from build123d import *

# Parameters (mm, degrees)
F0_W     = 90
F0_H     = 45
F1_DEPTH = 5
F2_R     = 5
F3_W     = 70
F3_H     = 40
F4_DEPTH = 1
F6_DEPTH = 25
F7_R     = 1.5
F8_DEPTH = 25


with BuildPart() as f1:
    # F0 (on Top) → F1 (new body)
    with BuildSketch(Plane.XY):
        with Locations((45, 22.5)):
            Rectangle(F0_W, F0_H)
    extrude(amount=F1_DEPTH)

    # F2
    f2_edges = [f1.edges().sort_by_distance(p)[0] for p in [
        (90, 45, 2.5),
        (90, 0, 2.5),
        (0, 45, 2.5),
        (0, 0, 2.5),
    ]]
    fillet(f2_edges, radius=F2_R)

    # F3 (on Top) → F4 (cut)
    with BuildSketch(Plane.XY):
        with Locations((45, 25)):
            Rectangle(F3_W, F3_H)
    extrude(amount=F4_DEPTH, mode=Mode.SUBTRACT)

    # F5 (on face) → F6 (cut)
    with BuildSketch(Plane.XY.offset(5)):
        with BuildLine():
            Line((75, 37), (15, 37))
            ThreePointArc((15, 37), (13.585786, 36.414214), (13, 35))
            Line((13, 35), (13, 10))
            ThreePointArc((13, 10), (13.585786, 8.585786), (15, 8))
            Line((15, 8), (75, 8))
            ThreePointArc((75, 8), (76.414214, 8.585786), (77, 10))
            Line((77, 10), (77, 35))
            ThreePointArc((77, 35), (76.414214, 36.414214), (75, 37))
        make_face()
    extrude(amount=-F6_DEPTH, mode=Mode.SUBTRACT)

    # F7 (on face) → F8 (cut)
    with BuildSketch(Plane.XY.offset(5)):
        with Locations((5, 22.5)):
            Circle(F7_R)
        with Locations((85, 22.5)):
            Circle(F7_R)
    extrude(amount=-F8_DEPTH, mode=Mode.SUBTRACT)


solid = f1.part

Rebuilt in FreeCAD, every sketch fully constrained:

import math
import FreeCAD as App
import Part
import Sketcher
from FreeCAD import Vector
Q = App.Units.Quantity


def edges_at(feature, points):
    """Names of the edges that pass closest to the given points."""
    edges = feature.Shape.Edges
    near = lambda p: min(range(len(edges)), key=lambda i: edges[i].distToShape(Part.Vertex(*p))[0])
    return sorted({f"Edge{near(p) + 1}" for p in points})


def add_polygon(sketch, points):
    """Adds a closed chain of lines whose ends are joined by coincident constraints."""
    first, n = sketch.GeometryCount, len(points)
    for a, b in zip(points, points[1:] + points[:1]):
        sketch.addGeometry(Part.LineSegment(App.Vector(*a, 0), App.Vector(*b, 0)), False)
    for i in range(n):
        sketch.addConstraint(Sketcher.Constraint("Coincident", first + i, 2, first + (i + 1) % n, 1))

doc = App.newDocument("Part")
body = doc.addObject("PartDesign::Body", "Body")

sketch1 = body.newObject("Sketcher::SketchObject", "Sketch")
sketch1.AttachmentSupport = (doc.getObject("XY_Plane"), [""])
sketch1.MapMode = "FlatFace"
add_polygon(sketch1, [(0, 45), (0, 0), (90, 0), (90, 45)])
sketch1.addConstraint([
    Sketcher.Constraint("Vertical", 0),
    Sketcher.Constraint("Horizontal", 1),
    Sketcher.Constraint("Vertical", 2),
    Sketcher.Constraint("Horizontal", 3),
    Sketcher.Constraint("Coincident", 0, 2, -1, 1),
    Sketcher.Constraint("DistanceX", 1, 1, 1, 2, Q("90 mm")),
    Sketcher.Constraint("DistanceY", 0, 2, 0, 1, Q("45 mm")),
])
pad1 = body.newObject("PartDesign::Pad", "Pad")
pad1.Profile = sketch1
pad1.Length = 5
doc.recompute()

fillet = body.newObject("PartDesign::Fillet", "Fillet")
fillet.Base = (pad1, edges_at(pad1, [
    (90, 45, 2.5),
    (90, 0, 2.5),
    (0, 45, 2.5),
    (0, 0, 2.5),
]))
fillet.Radius = 5

sketch2 = body.newObject("Sketcher::SketchObject", "Sketch001")
sketch2.AttachmentSupport = (doc.getObject("XY_Plane"), [""])
sketch2.MapMode = "FlatFace"
add_polygon(sketch2, [(10, 45), (10, 5), (80, 5), (80, 45)])
sketch2.addConstraint([
    Sketcher.Constraint("Vertical", 0),
    Sketcher.Constraint("Horizontal", 1),
    Sketcher.Constraint("Vertical", 2),
    Sketcher.Constraint("Horizontal", 3),
    Sketcher.Constraint("DistanceX", 1, 1, 1, 2, Q("70 mm")),
    Sketcher.Constraint("DistanceY", 0, 2, 0, 1, Q("40 mm")),
    Sketcher.Constraint("DistanceX", -1, 1, 0, 2, Q("10 mm")),
    Sketcher.Constraint("DistanceY", -1, 1, 0, 2, Q("5 mm")),
])
pocket1 = body.newObject("PartDesign::Pocket", "Pocket")
pocket1.Profile = sketch2
pocket1.Length = 1
pocket1.Reversed = True

sketch3 = body.newObject("Sketcher::SketchObject", "Sketch002")
sketch3.AttachmentSupport = (doc.getObject("XY_Plane"), [""])
sketch3.MapMode = "FlatFace"
sketch3.AttachmentOffset = App.Placement(Vector(0, 0, 5), App.Rotation())
sketch3.addGeometry([
    Part.LineSegment(Vector(75, 37, 0), Vector(15, 37, 0)),
    Part.ArcOfCircle(Part.Circle(Vector(14.999999, 35.000001, 0), Vector(0, 0, 1), 1.999999), math.radians(89.999957), math.radians(180.000043)),
    Part.LineSegment(Vector(13, 35, 0), Vector(13, 10, 0)),
    Part.ArcOfCircle(Part.Circle(Vector(14.999999, 9.999999, 0), Vector(0, 0, 1), 1.999999), math.radians(179.999957), math.radians(270.000043)),
    Part.LineSegment(Vector(15, 8, 0), Vector(75, 8, 0)),
    Part.ArcOfCircle(Part.Circle(Vector(75.000001, 9.999999, 0), Vector(0, 0, 1), 1.999999), math.radians(-90.000043), math.radians(0.000043)),
    Part.LineSegment(Vector(77, 10, 0), Vector(77, 35, 0)),
    Part.ArcOfCircle(Part.Circle(Vector(75.000001, 35.000001, 0), Vector(0, 0, 1), 1.999999), math.radians(-0.000043), math.radians(90.000043)),
], False)
sketch3.addConstraint([
    Sketcher.Constraint("Tangent", 0, 2, 1, 1),
    Sketcher.Constraint("Tangent", 1, 2, 2, 1),
    Sketcher.Constraint("Tangent", 2, 2, 3, 1),
    Sketcher.Constraint("Tangent", 3, 2, 4, 1),
    Sketcher.Constraint("Tangent", 4, 2, 5, 1),
    Sketcher.Constraint("Tangent", 5, 2, 6, 1),
    Sketcher.Constraint("Tangent", 6, 2, 7, 1),
    Sketcher.Constraint("Tangent", 7, 2, 0, 1),
    Sketcher.Constraint("Horizontal", 0),
    Sketcher.Constraint("Vertical", 2),
    Sketcher.Constraint("Horizontal", 4),
    Sketcher.Constraint("Vertical", 6),
    Sketcher.Constraint("Equal", 1, 3),
    Sketcher.Constraint("Equal", 3, 5),
    Sketcher.Constraint("Equal", 5, 7),
    Sketcher.Constraint("Radius", 1, Q("1.999999 mm")),
    Sketcher.Constraint("DistanceX", 0, 2, 0, 1, Q("60 mm")),
    Sketcher.Constraint("DistanceY", 2, 2, 2, 1, Q("25 mm")),
    Sketcher.Constraint("DistanceX", -1, 1, 1, 3, Q("14.999999 mm")),
    Sketcher.Constraint("DistanceY", -1, 1, 1, 3, Q("35.000001 mm")),
])
pocket2 = body.newObject("PartDesign::Pocket", "Pocket001")
pocket2.Profile = sketch3
pocket2.Length = 25

sketch4 = body.newObject("Sketcher::SketchObject", "Sketch003")
sketch4.AttachmentSupport = (doc.getObject("XY_Plane"), [""])
sketch4.MapMode = "FlatFace"
sketch4.AttachmentOffset = App.Placement(Vector(0, 0, 5), App.Rotation())
sketch4.addGeometry([
    Part.Circle(Vector(5, 22.5, 0), Vector(0, 0, 1), 1.5),
    Part.Circle(Vector(85, 22.5, 0), Vector(0, 0, 1), 1.5),
], False)
sketch4.addConstraint([
    Sketcher.Constraint("Equal", 0, 1),
    Sketcher.Constraint("Horizontal", 0, 3, 1, 3),
    Sketcher.Constraint("Diameter", 0, Q("3 mm")),
    Sketcher.Constraint("DistanceX", -1, 1, 0, 3, Q("5 mm")),
    Sketcher.Constraint("DistanceX", -1, 1, 1, 3, Q("85 mm")),
    Sketcher.Constraint("DistanceY", -1, 1, 0, 3, Q("22.5 mm")),
])
pocket3 = body.newObject("PartDesign::Pocket", "Pocket002")
pocket3.Profile = sketch4
pocket3.Length = 25

doc.recompute()
